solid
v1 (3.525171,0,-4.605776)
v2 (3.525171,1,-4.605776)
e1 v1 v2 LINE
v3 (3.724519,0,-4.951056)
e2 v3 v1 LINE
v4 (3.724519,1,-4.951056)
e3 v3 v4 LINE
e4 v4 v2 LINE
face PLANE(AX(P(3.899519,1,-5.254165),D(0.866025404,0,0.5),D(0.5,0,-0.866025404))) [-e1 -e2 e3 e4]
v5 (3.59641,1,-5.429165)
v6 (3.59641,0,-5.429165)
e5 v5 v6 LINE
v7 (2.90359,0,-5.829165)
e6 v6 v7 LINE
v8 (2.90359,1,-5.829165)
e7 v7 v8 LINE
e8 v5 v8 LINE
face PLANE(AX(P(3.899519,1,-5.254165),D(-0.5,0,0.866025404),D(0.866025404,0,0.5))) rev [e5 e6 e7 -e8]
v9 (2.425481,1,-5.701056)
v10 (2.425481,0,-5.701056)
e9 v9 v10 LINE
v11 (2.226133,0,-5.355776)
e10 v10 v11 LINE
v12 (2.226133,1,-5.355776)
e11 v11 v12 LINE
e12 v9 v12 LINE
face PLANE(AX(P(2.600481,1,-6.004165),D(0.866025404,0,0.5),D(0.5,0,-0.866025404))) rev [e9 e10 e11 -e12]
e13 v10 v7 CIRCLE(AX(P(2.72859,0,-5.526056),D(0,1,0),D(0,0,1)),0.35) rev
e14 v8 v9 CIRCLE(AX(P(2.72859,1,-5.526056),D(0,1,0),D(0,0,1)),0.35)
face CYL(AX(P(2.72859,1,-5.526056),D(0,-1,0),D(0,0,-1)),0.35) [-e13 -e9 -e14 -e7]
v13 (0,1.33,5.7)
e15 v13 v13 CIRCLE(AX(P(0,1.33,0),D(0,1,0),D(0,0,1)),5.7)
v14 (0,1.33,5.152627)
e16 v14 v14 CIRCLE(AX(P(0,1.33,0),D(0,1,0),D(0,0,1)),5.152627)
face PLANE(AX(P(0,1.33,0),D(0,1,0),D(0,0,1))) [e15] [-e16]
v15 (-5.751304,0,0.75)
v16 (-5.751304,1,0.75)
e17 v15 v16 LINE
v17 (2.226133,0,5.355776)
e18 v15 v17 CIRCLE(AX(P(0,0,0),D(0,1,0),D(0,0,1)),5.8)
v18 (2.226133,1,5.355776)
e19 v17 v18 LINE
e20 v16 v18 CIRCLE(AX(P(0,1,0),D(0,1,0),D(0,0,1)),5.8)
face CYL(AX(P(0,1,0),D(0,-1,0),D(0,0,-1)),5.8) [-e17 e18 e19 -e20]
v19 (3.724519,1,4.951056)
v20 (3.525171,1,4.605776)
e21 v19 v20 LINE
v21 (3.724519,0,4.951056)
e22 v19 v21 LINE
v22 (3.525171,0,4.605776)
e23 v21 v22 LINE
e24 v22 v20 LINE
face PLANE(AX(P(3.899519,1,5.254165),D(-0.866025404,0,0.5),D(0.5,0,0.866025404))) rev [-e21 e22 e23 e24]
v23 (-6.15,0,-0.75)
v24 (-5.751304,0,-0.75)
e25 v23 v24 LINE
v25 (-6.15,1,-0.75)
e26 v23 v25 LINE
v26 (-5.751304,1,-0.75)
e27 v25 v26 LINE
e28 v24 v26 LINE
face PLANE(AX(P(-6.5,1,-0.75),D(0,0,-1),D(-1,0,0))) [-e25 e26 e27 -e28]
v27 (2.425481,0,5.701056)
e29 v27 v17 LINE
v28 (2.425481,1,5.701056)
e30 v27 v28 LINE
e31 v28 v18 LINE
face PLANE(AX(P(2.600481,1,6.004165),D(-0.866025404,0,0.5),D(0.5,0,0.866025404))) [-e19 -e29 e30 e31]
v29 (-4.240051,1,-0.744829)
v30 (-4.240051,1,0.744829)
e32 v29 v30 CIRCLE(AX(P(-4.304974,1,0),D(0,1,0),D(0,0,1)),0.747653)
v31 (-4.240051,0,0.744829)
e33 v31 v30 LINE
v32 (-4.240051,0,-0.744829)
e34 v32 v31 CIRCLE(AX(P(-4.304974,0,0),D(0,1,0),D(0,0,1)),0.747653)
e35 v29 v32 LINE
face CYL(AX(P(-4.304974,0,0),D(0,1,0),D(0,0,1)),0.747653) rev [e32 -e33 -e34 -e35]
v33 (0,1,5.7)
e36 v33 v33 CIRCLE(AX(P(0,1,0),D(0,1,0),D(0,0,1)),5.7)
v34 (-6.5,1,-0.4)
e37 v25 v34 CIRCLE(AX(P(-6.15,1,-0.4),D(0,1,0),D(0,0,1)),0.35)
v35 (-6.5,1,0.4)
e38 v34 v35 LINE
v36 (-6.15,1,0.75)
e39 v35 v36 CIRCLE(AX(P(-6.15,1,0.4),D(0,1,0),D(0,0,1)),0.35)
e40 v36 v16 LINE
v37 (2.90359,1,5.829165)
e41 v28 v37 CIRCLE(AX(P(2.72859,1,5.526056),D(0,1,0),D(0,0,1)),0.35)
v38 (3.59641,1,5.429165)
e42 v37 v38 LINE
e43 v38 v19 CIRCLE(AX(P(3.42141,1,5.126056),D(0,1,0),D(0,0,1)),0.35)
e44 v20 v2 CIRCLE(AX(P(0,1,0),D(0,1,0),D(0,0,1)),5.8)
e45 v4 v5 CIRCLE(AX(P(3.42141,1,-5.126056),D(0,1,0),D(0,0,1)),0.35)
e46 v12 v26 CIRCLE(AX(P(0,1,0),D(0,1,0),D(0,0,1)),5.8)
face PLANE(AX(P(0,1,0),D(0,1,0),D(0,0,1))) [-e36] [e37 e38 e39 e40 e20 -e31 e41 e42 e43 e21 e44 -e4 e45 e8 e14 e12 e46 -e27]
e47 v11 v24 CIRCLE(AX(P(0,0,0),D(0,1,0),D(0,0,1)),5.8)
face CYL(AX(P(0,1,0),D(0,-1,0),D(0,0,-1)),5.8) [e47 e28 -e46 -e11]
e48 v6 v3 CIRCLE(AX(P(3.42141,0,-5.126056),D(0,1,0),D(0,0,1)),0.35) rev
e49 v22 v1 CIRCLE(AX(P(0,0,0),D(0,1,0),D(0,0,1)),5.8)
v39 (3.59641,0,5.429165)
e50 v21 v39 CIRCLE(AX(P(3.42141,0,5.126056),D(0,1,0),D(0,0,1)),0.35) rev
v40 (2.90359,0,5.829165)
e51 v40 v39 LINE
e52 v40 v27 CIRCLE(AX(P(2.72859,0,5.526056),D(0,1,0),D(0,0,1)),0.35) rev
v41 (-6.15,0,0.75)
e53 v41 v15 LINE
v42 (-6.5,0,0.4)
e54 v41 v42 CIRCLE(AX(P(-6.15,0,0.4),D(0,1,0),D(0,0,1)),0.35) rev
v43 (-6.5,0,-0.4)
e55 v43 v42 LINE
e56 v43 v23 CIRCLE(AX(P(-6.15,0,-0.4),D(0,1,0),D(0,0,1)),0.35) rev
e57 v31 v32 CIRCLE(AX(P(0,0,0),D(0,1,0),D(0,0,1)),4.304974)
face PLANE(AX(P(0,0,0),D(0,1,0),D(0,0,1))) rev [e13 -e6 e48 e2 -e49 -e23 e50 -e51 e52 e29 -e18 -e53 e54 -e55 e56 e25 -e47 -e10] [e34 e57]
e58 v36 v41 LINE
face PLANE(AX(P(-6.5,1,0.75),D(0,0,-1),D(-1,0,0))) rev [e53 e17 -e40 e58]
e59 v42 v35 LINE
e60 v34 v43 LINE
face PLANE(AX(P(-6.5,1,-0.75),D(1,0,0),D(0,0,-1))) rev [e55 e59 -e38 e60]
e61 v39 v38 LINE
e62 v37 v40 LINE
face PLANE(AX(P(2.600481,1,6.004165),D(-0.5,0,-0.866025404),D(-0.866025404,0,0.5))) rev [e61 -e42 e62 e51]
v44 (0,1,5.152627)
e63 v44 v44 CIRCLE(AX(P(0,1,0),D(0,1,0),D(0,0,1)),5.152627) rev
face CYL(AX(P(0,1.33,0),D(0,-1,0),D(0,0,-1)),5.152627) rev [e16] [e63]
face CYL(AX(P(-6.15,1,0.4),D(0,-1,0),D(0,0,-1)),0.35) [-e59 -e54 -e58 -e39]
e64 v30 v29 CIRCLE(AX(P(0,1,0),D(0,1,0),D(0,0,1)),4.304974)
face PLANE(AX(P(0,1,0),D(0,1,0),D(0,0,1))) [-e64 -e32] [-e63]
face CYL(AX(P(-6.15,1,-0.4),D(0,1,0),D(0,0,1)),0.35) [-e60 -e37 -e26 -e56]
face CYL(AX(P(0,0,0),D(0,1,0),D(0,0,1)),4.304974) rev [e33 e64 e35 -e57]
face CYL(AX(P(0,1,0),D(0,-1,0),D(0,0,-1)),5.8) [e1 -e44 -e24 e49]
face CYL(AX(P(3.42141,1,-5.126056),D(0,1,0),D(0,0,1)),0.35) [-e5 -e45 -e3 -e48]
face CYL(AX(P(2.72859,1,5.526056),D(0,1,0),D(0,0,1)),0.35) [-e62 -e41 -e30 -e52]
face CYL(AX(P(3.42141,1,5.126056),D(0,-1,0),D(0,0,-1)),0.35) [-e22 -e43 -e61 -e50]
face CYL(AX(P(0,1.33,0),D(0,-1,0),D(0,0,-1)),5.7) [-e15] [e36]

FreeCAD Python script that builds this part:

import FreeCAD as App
import Part
import Sketcher
Q = App.Units.Quantity


def edges_at(feature, points):
    """Names of the edges that pass closest to the given points."""
    edges = feature.Shape.Edges
    near = lambda p: min(range(len(edges)), key=lambda i: edges[i].distToShape(Part.Vertex(*p))[0])
    return sorted({f"Edge{near(p) + 1}" for p in points})


def add_polygon(sketch, points):
    """Adds a closed chain of lines whose ends are joined by coincident constraints."""
    first, n = sketch.GeometryCount, len(points)
    for a, b in zip(points, points[1:] + points[:1]):
        sketch.addGeometry(Part.LineSegment(App.Vector(*a, 0), App.Vector(*b, 0)), False)
    for i in range(n):
        sketch.addConstraint(Sketcher.Constraint("Coincident", first + i, 2, first + (i + 1) % n, 1))

doc = App.newDocument("Part")
body = doc.addObject("PartDesign::Body", "Body")

sketch1 = body.newObject("Sketcher::SketchObject", "Sketch")
sketch1.AttachmentSupport = (doc.getObject("XZ_Plane"), [""])
sketch1.MapMode = "FlatFace"
sketch1.addGeometry(Part.Circle(App.Vector(0, 0, 0), App.Vector(0, 0, 1), 6), False)
sketch1.addConstraint(Sketcher.Constraint("Coincident", 0, 3, -1, 1))
sketch1.addConstraint(Sketcher.Constraint("Diameter", 0, Q("11.6 mm")))
pad1 = body.newObject("PartDesign::Pad", "Pad")
pad1.Profile = sketch1
pad1.Length = 1
pad1.Reversed = True

sketch2 = body.newObject("Sketcher::SketchObject", "Sketch001")
sketch2.AttachmentSupport = (doc.getObject("XZ_Plane"), [""])
sketch2.MapMode = "FlatFace"
add_polygon(sketch2, [(-6.5, -0.8), (-6.5, 0.8), (-5.2, 0.8), (-5.2, -0.8)])
sketch2.addConstraint(Sketcher.Constraint("Vertical", 0))
sketch2.addConstraint(Sketcher.Constraint("Horizontal", 1))
sketch2.addConstraint(Sketcher.Constraint("Vertical", 2))
sketch2.addConstraint(Sketcher.Constraint("Horizontal", 3))
sketch2.addConstraint(Sketcher.Constraint("DistanceY", 0, 1, 0, 2, Q("1.5 mm")))
sketch2.addConstraint(Sketcher.Constraint("DistanceX", 0, 2, -1, 1, Q("6.5 mm")))
sketch2.addConstraint(Sketcher.Constraint("DistanceY", -1, 1, 0, 2, Q("0.75 mm")))
sketch2.addConstraint(Sketcher.Constraint("DistanceX", 1, 1, 1, 2, Q("1.261937 mm")))
pad2 = body.newObject("PartDesign::Pad", "Pad001")
pad2.Profile = sketch2
pad2.Length = 1
pad2.Reversed = True

sketch3 = body.newObject("Sketcher::SketchObject", "Sketch002")
sketch3.AttachmentSupport = (doc.getObject("XZ_Plane"), [""])
sketch3.MapMode = "FlatFace"
sketch3.AttachmentOffset = App.Placement(App.Vector(0, 0, -1), App.Rotation())
sketch3.addGeometry(Part.Circle(App.Vector(0, 0, 0), App.Vector(0, 0, 1), 4.3), False)
sketch3.addConstraint(Sketcher.Constraint("Coincident", 0, 3, -1, 1))
sketch3.addConstraint(Sketcher.Constraint("Diameter", 0, Q("8.609948 mm")))
pocket1 = body.newObject("PartDesign::Pocket", "Pocket")
pocket1.Profile = sketch3
pocket1.Length = 1
pocket1.Reversed = True

sketch4 = body.newObject("Sketcher::SketchObject", "Sketch003")
sketch4.AttachmentSupport = (doc.getObject("XZ_Plane"), [""])
sketch4.MapMode = "FlatFace"
sketch4.AttachmentOffset = App.Placement(App.Vector(0, 0, -1), App.Rotation())
sketch4.addGeometry(Part.Circle(App.Vector(-4.3, 0, 0), App.Vector(0, 0, 1), 0.7), False)
sketch4.addConstraint(Sketcher.Constraint("PointOnObject", 0, 3, -1))
sketch4.addConstraint(Sketcher.Constraint("Diameter", 0, Q("1.495305 mm")))
sketch4.addConstraint(Sketcher.Constraint("DistanceX", 0, 3, -1, 1, Q("4.304974 mm")))
pocket2 = body.newObject("PartDesign::Pocket", "Pocket001")
pocket2.Profile = sketch4
pocket2.Length = 1
pocket2.Reversed = True
doc.recompute()

polarpattern = body.newObject("PartDesign::PolarPattern", "PolarPattern")
polarpattern.Originals = [pad2]
polarpattern.Axis = (doc.getObject("Y_Axis"), [""])
polarpattern.Angle = 360
polarpattern.Occurrences = 3
body.Tip = polarpattern
doc.recompute()

fillet = body.newObject("PartDesign::Fillet", "Fillet")
fillet.Base = (polarpattern, edges_at(polarpattern, [
    (-6.5, 0.5, 0.75),
    (-6.5, 0.5, -0.75),
    (3.9, 0.5, 5.254),
    (2.6, 0.5, 6.004),
    (2.6, 0.5, -6.004),
    (3.9, 0.5, -5.254),
]))
fillet.Radius = 0.35

sketch5 = body.newObject("Sketcher::SketchObject", "Sketch004")
sketch5.AttachmentSupport = (doc.getObject("XZ_Plane"), [""])
sketch5.MapMode = "FlatFace"
sketch5.AttachmentOffset = App.Placement(App.Vector(0, 0, -1), App.Rotation())
sketch5.addGeometry(Part.Circle(App.Vector(0, 0, 0), App.Vector(0, 0, 1), 6), False)
sketch5.addGeometry(Part.Circle(App.Vector(0, 0, 0), App.Vector(0, 0, 1), 5), False)
sketch5.addConstraint(Sketcher.Constraint("Coincident", 0, 3, -1, 1))
sketch5.addConstraint(Sketcher.Constraint("Coincident", 1, 3, -1, 1))
sketch5.addConstraint(Sketcher.Constraint("Diameter", 0, Q("11.4 mm")))
sketch5.addConstraint(Sketcher.Constraint("Diameter", 1, Q("10.305254 mm")))
pad3 = body.newObject("PartDesign::Pad", "Pad002")
pad3.Profile = sketch5
pad3.Length = 0.33
pad3.Reversed = True

doc.recompute()
